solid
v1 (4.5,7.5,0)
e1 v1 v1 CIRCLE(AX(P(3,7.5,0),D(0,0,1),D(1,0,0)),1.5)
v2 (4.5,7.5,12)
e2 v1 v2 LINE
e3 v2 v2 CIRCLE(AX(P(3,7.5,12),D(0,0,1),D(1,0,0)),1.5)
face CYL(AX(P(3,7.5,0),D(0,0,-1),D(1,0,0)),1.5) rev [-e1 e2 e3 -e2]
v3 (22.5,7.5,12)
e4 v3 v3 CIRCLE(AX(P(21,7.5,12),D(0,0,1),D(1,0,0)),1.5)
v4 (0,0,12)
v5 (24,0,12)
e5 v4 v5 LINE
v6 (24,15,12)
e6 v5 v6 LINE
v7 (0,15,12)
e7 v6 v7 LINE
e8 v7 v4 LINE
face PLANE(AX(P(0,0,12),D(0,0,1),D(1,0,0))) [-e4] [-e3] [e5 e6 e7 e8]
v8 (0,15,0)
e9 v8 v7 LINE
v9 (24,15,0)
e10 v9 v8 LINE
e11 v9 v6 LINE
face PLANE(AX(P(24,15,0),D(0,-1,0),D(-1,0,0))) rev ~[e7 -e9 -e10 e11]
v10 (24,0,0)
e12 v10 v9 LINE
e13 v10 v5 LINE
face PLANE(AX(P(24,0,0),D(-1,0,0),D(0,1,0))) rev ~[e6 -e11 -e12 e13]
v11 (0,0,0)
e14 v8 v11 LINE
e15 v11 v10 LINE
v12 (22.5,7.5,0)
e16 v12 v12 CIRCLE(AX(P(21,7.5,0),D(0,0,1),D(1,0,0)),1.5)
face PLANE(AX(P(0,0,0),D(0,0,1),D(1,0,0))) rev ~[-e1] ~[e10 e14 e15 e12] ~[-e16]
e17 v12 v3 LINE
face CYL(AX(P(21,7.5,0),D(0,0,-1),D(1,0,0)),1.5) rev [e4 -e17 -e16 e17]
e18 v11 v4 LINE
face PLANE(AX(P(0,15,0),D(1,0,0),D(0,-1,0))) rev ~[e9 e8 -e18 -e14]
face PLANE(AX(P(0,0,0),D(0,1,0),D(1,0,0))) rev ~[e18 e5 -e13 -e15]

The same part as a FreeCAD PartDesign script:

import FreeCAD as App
import Part
import Sketcher


def add_polygon(sketch, points):
    """Adds a closed chain of lines whose ends are joined by coincident constraints."""
    first, n = sketch.GeometryCount, len(points)
    for a, b in zip(points, points[1:] + points[:1]):
        sketch.addGeometry(Part.LineSegment(App.Vector(*a, 0), App.Vector(*b, 0)), False)
    for i in range(n):
        sketch.addConstraint(Sketcher.Constraint("Coincident", first + i, 2, first + (i + 1) % n, 1))

doc = App.newDocument("Part")
body = doc.addObject("PartDesign::Body", "Body")

sketch1 = body.newObject("Sketcher::SketchObject", "Sketch")
sketch1.AttachmentSupport = (doc.getObject("XY_Plane"), [""])
sketch1.MapMode = "FlatFace"
add_polygon(sketch1, [(0, 15), (0, 0), (24, 0), (24, 15)])
sketch1.addGeometry(Part.Circle(App.Vector(3, 7.5, 0), App.Vector(0, 0, 1), 1.5), False)
sketch1.addGeometry(Part.Circle(App.Vector(21, 7.5, 0), App.Vector(0, 0, 1), 1.5), False)
sketch1.addConstraint(Sketcher.Constraint("Vertical", 0))
sketch1.addConstraint(Sketcher.Constraint("Horizontal", 1))
sketch1.addConstraint(Sketcher.Constraint("Vertical", 2))
sketch1.addConstraint(Sketcher.Constraint("Horizontal", 3))
sketch1.addConstraint(Sketcher.Constraint("Coincident", 0, 2, -1, 1))
sketch1.addConstraint(Sketcher.Constraint("Equal", 4, 5))
sketch1.addConstraint(Sketcher.Constraint("Horizontal", 4, 3, 5, 3))
sketch1.addConstraint(Sketcher.Constraint("Diameter", 4, 3.0))
sketch1.addConstraint(Sketcher.Constraint("DistanceX", 1, 1, 1, 2, 24.0))
sketch1.addConstraint(Sketcher.Constraint("DistanceY", 0, 2, 0, 1, 15.0))
sketch1.addConstraint(Sketcher.Constraint("DistanceX", -1, 1, 4, 3, 3.0))
sketch1.addConstraint(Sketcher.Constraint("DistanceX", 5, 3, 1, 2, 3.0))
sketch1.addConstraint(Sketcher.Constraint("DistanceY", -1, 1, 4, 3, 7.5))
pad1 = body.newObject("PartDesign::Pad", "Pad")
pad1.Profile = sketch1
pad1.Length = 12

doc.recompute()
